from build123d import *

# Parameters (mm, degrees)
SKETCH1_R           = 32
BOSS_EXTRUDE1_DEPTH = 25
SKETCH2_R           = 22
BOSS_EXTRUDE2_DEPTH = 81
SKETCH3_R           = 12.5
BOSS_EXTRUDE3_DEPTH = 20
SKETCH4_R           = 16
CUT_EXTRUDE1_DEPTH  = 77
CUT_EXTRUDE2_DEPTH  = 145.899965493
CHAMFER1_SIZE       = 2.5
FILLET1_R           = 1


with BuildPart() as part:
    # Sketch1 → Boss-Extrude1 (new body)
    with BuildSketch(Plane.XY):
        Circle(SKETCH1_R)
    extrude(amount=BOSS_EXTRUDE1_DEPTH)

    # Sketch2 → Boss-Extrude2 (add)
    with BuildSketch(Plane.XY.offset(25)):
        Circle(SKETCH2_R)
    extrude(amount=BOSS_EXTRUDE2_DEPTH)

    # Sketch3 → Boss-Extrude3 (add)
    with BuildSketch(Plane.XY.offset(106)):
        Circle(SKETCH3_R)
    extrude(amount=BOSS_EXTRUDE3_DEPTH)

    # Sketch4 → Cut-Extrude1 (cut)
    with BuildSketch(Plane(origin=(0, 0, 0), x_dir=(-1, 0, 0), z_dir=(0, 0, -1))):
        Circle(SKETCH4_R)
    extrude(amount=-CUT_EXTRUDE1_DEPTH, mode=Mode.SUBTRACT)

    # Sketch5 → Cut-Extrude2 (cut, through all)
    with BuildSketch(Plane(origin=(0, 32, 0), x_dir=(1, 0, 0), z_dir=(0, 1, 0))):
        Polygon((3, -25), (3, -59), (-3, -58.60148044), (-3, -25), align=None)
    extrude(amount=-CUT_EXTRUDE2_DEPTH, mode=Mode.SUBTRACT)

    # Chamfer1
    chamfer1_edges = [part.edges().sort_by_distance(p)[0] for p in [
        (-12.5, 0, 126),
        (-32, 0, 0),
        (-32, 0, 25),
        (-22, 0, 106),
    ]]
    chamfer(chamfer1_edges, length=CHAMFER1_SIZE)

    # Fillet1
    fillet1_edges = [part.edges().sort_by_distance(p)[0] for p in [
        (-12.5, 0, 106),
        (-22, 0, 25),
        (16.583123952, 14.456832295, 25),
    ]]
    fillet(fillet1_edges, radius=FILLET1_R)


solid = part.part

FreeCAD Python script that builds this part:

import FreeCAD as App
import Part
import Sketcher
Q = App.Units.Quantity


def edges_at(feature, points):
    """Names of the edges that pass closest to the given points."""
    edges = feature.Shape.Edges
    near = lambda p: min(range(len(edges)), key=lambda i: edges[i].distToShape(Part.Vertex(*p))[0])
    return sorted({f"Edge{near(p) + 1}" for p in points})

doc = App.newDocument("Part")
body = doc.addObject("PartDesign::Body", "Body")

sketch1 = doc.addObject("Sketcher::SketchObject", "Sketch")
body.addObject(sketch1)
sketch1.AttachmentSupport = (doc.XY_Plane, [""])
sketch1.MapMode = "FlatFace"
sketch1.addGeometry(Part.Circle(App.Vector(0, 0, 0), App.Vector(0, 0, 1), 32), False)
sketch1.addConstraint(Sketcher.Constraint("Coincident", 0, 3, -1, 1))
sketch1.addConstraint(Sketcher.Constraint("Diameter", 0, Q("64 mm")))
pad1 = doc.addObject("PartDesign::Pad", "Pad")
body.addObject(pad1)
pad1.Profile = sketch1
pad1.Length = 25

sketch2 = doc.addObject("Sketcher::SketchObject", "Sketch001")
body.addObject(sketch2)
sketch2.AttachmentSupport = (doc.XY_Plane, [""])
sketch2.MapMode = "FlatFace"
sketch2.AttachmentOffset = App.Placement(App.Vector(0, 0, 25), App.Rotation())
sketch2.addGeometry(Part.Circle(App.Vector(0, 0, 0), App.Vector(0, 0, 1), 22), False)
sketch2.addConstraint(Sketcher.Constraint("Coincident", 0, 3, -1, 1))
sketch2.addConstraint(Sketcher.Constraint("Diameter", 0, Q("44 mm")))
pad2 = doc.addObject("PartDesign::Pad", "Pad001")
body.addObject(pad2)
pad2.Profile = sketch2
pad2.Length = 81

sketch3 = doc.addObject("Sketcher::SketchObject", "Sketch002")
body.addObject(sketch3)
sketch3.AttachmentSupport = (doc.XY_Plane, [""])
sketch3.MapMode = "FlatFace"
sketch3.AttachmentOffset = App.Placement(App.Vector(0, 0, 106), App.Rotation())
sketch3.addGeometry(Part.Circle(App.Vector(0, 0, 0), App.Vector(0, 0, 1), 12), False)
sketch3.addConstraint(Sketcher.Constraint("Coincident", 0, 3, -1, 1))
sketch3.addConstraint(Sketcher.Constraint("Diameter", 0, Q("25 mm")))
pad3 = doc.addObject("PartDesign::Pad", "Pad002")
body.addObject(pad3)
pad3.Profile = sketch3
pad3.Length = 20

sketch4 = doc.addObject("Sketcher::SketchObject", "Sketch003")
body.addObject(sketch4)
sketch4.AttachmentSupport = (doc.XY_Plane, [""])
sketch4.MapMode = "FlatFace"
sketch4.addGeometry(Part.Circle(App.Vector(0, 0, 0), App.Vector(0, 0, 1), 16), False)
sketch4.addConstraint(Sketcher.Constraint("Coincident", 0, 3, -1, 1))
sketch4.addConstraint(Sketcher.Constraint("Diameter", 0, Q("32 mm")))
pocket1 = doc.addObject("PartDesign::Pocket", "Pocket")
body.addObject(pocket1)
pocket1.Profile = sketch4
pocket1.Length = 77
pocket1.Reversed = True

sketch5 = doc.addObject("Sketcher::SketchObject", "Sketch004")
body.addObject(sketch5)
sketch5.AttachmentSupport = (doc.XZ_Plane, [""])
sketch5.MapMode = "FlatFace"
sketch5.AttachmentOffset = App.Placement(App.Vector(0, 0, -32), App.Rotation())
sketch5.addGeometry(Part.LineSegment(App.Vector(3, 59, 0), App.Vector(3, 25, 0)), False)
sketch5.addGeometry(Part.LineSegment(App.Vector(3, 25, 0), App.Vector(-3, 25, 0)), False)
sketch5.addGeometry(Part.LineSegment(App.Vector(-3, 25, 0), App.Vector(-3, 59, 0)), False)
sketch5.addGeometry(Part.LineSegment(App.Vector(-3, 59, 0), App.Vector(3, 59, 0)), False)
sketch5.addConstraint(Sketcher.Constraint("Coincident", 0, 2, 1, 1))
sketch5.addConstraint(Sketcher.Constraint("Coincident", 1, 2, 2, 1))
sketch5.addConstraint(Sketcher.Constraint("Coincident", 2, 2, 3, 1))
sketch5.addConstraint(Sketcher.Constraint("Coincident", 3, 2, 0, 1))
sketch5.addConstraint(Sketcher.Constraint("Vertical", 0))
sketch5.addConstraint(Sketcher.Constraint("Horizontal", 1))
sketch5.addConstraint(Sketcher.Constraint("Vertical", 2))
sketch5.addConstraint(Sketcher.Constraint("DistanceX", 1, 2, 1, 1, Q("6 mm")))
sketch5.addConstraint(Sketcher.Constraint("DistanceY", 0, 2, 0, 1, Q("34 mm")))
sketch5.addConstraint(Sketcher.Constraint("DistanceX", -1, 1, 0, 2, Q("3 mm")))
sketch5.addConstraint(Sketcher.Constraint("DistanceY", -1, 1, 0, 2, Q("25 mm")))
sketch5.addConstraint(Sketcher.Constraint("Angle", 3, Q("3.8 deg")))
pocket2 = doc.addObject("PartDesign::Pocket", "Pocket001")
body.addObject(pocket2)
pocket2.Profile = sketch5
pocket2.Type = "ThroughAll"
pocket2.Reversed = True
doc.recompute()

chamfer = doc.addObject("PartDesign::Chamfer", "Chamfer")
body.addObject(chamfer)
chamfer.Base = (pocket2, edges_at(pocket2, [
    (-12.5, 0, 126),
    (-32, 0, 0),
    (-32, 0, 25),
    (-22, 0, 106),
]))
chamfer.Size = 2.5
doc.recompute()

fillet = doc.addObject("PartDesign::Fillet", "Fillet")
body.addObject(fillet)
fillet.Base = (chamfer, edges_at(chamfer, [(-12.5, 0, 106), (-22, 0, 25), (16.583, 14.457, 25)]))
fillet.Radius = 1

doc.recompute()
